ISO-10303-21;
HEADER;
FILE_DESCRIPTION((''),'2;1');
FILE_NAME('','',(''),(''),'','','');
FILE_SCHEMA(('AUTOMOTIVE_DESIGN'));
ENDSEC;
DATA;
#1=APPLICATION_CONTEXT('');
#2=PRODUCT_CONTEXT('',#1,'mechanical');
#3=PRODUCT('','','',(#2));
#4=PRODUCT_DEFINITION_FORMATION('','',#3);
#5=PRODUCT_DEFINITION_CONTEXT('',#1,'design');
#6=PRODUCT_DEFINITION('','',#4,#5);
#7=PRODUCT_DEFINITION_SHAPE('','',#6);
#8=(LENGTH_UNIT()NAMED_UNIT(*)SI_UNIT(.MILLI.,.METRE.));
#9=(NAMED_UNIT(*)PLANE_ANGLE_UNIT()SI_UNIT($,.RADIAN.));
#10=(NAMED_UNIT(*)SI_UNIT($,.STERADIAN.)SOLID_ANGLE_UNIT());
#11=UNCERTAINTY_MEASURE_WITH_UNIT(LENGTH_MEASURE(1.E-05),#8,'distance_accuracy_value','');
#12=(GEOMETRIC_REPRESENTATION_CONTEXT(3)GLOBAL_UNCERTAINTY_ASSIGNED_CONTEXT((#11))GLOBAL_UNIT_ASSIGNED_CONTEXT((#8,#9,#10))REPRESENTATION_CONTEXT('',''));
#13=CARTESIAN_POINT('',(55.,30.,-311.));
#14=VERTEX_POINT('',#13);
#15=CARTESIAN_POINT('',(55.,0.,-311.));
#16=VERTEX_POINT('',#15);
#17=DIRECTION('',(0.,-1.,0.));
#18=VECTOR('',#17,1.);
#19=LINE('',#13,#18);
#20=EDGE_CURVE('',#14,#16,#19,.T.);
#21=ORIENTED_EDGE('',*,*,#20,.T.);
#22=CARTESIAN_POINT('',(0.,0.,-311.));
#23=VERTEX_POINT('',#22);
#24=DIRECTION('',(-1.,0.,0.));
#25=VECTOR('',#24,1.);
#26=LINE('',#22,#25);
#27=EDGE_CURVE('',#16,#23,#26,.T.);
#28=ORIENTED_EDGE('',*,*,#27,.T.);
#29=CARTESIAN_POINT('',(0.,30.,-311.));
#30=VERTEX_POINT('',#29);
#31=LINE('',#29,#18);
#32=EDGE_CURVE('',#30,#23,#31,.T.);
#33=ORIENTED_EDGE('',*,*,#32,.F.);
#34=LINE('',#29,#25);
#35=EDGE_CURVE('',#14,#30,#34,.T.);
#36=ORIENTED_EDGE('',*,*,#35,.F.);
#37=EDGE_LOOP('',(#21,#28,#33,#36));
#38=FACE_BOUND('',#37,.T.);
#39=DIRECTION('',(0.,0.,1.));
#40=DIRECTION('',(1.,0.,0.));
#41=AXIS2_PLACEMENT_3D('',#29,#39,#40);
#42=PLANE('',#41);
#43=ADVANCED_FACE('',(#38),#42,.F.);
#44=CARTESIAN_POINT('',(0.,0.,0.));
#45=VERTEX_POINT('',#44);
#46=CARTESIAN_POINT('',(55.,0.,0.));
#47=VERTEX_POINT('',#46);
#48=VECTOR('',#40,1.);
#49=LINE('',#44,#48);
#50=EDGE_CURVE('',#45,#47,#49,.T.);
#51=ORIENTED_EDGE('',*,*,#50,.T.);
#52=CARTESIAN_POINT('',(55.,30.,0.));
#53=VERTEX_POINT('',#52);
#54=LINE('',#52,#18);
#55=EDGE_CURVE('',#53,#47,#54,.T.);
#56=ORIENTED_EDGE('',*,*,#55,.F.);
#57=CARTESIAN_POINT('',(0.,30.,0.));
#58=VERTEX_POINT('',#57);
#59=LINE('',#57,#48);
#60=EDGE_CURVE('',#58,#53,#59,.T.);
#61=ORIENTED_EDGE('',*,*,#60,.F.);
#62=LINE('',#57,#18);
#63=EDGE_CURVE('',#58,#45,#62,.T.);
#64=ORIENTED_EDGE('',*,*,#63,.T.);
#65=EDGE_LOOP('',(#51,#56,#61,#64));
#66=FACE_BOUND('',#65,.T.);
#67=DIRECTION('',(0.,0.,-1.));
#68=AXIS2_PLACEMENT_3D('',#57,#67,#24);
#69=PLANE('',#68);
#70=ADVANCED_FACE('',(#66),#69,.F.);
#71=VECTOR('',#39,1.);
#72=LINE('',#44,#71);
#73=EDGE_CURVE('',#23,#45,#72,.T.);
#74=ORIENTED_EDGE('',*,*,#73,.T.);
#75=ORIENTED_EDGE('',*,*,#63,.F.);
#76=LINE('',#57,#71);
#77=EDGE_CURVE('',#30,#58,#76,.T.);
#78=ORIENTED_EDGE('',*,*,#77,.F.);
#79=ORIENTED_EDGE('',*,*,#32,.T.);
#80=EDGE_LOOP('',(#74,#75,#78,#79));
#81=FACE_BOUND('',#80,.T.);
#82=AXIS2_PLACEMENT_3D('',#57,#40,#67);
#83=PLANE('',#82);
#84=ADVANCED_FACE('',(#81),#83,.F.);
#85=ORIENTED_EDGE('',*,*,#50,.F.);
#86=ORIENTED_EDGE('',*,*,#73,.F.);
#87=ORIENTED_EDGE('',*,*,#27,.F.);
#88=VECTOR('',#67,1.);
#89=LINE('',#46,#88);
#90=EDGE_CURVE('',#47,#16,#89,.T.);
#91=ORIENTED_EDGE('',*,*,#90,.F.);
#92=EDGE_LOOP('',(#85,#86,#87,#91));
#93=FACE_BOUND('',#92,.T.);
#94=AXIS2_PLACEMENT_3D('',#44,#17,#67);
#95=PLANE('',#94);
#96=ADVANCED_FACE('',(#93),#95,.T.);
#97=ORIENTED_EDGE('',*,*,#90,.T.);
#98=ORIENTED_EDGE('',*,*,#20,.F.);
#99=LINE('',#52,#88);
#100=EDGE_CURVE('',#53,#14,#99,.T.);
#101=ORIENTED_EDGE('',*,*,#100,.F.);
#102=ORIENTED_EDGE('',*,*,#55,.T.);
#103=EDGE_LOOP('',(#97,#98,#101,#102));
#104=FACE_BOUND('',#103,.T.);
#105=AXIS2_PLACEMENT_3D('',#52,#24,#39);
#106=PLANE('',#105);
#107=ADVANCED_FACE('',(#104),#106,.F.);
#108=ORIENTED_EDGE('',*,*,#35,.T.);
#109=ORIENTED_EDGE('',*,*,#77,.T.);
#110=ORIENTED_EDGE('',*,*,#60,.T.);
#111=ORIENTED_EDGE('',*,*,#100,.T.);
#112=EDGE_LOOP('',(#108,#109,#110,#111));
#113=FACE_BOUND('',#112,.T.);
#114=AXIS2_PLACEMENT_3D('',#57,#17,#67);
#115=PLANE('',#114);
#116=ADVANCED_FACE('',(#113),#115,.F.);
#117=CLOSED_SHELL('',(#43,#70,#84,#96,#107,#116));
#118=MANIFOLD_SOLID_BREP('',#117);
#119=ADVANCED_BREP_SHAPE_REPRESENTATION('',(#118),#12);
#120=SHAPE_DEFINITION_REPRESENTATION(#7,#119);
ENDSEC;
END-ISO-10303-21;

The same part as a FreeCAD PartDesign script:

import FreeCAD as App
import Part
import Sketcher
Q = App.Units.Quantity


def add_polygon(sketch, points):
    """Adds a closed chain of lines whose ends are joined by coincident constraints."""
    first, n = sketch.GeometryCount, len(points)
    for a, b in zip(points, points[1:] + points[:1]):
        sketch.addGeometry(Part.LineSegment(App.Vector(*a, 0), App.Vector(*b, 0)), False)
    for i in range(n):
        sketch.addConstraint(Sketcher.Constraint("Coincident", first + i, 2, first + (i + 1) % n, 1))

doc = App.newDocument("Part")
body = doc.addObject("PartDesign::Body", "Body")

# Sketch on XZ plane
sketch1 = body.newObject("Sketcher::SketchObject", "Sketch")
sketch1.AttachmentSupport = (doc.getObject("XZ_Plane"), [""])
sketch1.MapMode = "FlatFace"
add_polygon(sketch1, [(0, -311), (0, 0), (55, 0), (55, -311)])  # lines 0-3
sketch1.addConstraint([
    Sketcher.Constraint("Vertical", 0),
    Sketcher.Constraint("Horizontal", 1),
    Sketcher.Constraint("Vertical", 2),
    Sketcher.Constraint("Horizontal", 3),
    Sketcher.Constraint("Coincident", 0, 2, -1, 1),
    Sketcher.Constraint("DistanceX", 1, 1, 1, 2, Q("55 mm")),
    Sketcher.Constraint("DistanceY", 0, 1, 0, 2, Q("311 mm")),
])
pad1 = body.newObject("PartDesign::Pad", "Pad")
pad1.Profile = sketch1
pad1.Length = 30
pad1.Reversed = True

doc.recompute()
